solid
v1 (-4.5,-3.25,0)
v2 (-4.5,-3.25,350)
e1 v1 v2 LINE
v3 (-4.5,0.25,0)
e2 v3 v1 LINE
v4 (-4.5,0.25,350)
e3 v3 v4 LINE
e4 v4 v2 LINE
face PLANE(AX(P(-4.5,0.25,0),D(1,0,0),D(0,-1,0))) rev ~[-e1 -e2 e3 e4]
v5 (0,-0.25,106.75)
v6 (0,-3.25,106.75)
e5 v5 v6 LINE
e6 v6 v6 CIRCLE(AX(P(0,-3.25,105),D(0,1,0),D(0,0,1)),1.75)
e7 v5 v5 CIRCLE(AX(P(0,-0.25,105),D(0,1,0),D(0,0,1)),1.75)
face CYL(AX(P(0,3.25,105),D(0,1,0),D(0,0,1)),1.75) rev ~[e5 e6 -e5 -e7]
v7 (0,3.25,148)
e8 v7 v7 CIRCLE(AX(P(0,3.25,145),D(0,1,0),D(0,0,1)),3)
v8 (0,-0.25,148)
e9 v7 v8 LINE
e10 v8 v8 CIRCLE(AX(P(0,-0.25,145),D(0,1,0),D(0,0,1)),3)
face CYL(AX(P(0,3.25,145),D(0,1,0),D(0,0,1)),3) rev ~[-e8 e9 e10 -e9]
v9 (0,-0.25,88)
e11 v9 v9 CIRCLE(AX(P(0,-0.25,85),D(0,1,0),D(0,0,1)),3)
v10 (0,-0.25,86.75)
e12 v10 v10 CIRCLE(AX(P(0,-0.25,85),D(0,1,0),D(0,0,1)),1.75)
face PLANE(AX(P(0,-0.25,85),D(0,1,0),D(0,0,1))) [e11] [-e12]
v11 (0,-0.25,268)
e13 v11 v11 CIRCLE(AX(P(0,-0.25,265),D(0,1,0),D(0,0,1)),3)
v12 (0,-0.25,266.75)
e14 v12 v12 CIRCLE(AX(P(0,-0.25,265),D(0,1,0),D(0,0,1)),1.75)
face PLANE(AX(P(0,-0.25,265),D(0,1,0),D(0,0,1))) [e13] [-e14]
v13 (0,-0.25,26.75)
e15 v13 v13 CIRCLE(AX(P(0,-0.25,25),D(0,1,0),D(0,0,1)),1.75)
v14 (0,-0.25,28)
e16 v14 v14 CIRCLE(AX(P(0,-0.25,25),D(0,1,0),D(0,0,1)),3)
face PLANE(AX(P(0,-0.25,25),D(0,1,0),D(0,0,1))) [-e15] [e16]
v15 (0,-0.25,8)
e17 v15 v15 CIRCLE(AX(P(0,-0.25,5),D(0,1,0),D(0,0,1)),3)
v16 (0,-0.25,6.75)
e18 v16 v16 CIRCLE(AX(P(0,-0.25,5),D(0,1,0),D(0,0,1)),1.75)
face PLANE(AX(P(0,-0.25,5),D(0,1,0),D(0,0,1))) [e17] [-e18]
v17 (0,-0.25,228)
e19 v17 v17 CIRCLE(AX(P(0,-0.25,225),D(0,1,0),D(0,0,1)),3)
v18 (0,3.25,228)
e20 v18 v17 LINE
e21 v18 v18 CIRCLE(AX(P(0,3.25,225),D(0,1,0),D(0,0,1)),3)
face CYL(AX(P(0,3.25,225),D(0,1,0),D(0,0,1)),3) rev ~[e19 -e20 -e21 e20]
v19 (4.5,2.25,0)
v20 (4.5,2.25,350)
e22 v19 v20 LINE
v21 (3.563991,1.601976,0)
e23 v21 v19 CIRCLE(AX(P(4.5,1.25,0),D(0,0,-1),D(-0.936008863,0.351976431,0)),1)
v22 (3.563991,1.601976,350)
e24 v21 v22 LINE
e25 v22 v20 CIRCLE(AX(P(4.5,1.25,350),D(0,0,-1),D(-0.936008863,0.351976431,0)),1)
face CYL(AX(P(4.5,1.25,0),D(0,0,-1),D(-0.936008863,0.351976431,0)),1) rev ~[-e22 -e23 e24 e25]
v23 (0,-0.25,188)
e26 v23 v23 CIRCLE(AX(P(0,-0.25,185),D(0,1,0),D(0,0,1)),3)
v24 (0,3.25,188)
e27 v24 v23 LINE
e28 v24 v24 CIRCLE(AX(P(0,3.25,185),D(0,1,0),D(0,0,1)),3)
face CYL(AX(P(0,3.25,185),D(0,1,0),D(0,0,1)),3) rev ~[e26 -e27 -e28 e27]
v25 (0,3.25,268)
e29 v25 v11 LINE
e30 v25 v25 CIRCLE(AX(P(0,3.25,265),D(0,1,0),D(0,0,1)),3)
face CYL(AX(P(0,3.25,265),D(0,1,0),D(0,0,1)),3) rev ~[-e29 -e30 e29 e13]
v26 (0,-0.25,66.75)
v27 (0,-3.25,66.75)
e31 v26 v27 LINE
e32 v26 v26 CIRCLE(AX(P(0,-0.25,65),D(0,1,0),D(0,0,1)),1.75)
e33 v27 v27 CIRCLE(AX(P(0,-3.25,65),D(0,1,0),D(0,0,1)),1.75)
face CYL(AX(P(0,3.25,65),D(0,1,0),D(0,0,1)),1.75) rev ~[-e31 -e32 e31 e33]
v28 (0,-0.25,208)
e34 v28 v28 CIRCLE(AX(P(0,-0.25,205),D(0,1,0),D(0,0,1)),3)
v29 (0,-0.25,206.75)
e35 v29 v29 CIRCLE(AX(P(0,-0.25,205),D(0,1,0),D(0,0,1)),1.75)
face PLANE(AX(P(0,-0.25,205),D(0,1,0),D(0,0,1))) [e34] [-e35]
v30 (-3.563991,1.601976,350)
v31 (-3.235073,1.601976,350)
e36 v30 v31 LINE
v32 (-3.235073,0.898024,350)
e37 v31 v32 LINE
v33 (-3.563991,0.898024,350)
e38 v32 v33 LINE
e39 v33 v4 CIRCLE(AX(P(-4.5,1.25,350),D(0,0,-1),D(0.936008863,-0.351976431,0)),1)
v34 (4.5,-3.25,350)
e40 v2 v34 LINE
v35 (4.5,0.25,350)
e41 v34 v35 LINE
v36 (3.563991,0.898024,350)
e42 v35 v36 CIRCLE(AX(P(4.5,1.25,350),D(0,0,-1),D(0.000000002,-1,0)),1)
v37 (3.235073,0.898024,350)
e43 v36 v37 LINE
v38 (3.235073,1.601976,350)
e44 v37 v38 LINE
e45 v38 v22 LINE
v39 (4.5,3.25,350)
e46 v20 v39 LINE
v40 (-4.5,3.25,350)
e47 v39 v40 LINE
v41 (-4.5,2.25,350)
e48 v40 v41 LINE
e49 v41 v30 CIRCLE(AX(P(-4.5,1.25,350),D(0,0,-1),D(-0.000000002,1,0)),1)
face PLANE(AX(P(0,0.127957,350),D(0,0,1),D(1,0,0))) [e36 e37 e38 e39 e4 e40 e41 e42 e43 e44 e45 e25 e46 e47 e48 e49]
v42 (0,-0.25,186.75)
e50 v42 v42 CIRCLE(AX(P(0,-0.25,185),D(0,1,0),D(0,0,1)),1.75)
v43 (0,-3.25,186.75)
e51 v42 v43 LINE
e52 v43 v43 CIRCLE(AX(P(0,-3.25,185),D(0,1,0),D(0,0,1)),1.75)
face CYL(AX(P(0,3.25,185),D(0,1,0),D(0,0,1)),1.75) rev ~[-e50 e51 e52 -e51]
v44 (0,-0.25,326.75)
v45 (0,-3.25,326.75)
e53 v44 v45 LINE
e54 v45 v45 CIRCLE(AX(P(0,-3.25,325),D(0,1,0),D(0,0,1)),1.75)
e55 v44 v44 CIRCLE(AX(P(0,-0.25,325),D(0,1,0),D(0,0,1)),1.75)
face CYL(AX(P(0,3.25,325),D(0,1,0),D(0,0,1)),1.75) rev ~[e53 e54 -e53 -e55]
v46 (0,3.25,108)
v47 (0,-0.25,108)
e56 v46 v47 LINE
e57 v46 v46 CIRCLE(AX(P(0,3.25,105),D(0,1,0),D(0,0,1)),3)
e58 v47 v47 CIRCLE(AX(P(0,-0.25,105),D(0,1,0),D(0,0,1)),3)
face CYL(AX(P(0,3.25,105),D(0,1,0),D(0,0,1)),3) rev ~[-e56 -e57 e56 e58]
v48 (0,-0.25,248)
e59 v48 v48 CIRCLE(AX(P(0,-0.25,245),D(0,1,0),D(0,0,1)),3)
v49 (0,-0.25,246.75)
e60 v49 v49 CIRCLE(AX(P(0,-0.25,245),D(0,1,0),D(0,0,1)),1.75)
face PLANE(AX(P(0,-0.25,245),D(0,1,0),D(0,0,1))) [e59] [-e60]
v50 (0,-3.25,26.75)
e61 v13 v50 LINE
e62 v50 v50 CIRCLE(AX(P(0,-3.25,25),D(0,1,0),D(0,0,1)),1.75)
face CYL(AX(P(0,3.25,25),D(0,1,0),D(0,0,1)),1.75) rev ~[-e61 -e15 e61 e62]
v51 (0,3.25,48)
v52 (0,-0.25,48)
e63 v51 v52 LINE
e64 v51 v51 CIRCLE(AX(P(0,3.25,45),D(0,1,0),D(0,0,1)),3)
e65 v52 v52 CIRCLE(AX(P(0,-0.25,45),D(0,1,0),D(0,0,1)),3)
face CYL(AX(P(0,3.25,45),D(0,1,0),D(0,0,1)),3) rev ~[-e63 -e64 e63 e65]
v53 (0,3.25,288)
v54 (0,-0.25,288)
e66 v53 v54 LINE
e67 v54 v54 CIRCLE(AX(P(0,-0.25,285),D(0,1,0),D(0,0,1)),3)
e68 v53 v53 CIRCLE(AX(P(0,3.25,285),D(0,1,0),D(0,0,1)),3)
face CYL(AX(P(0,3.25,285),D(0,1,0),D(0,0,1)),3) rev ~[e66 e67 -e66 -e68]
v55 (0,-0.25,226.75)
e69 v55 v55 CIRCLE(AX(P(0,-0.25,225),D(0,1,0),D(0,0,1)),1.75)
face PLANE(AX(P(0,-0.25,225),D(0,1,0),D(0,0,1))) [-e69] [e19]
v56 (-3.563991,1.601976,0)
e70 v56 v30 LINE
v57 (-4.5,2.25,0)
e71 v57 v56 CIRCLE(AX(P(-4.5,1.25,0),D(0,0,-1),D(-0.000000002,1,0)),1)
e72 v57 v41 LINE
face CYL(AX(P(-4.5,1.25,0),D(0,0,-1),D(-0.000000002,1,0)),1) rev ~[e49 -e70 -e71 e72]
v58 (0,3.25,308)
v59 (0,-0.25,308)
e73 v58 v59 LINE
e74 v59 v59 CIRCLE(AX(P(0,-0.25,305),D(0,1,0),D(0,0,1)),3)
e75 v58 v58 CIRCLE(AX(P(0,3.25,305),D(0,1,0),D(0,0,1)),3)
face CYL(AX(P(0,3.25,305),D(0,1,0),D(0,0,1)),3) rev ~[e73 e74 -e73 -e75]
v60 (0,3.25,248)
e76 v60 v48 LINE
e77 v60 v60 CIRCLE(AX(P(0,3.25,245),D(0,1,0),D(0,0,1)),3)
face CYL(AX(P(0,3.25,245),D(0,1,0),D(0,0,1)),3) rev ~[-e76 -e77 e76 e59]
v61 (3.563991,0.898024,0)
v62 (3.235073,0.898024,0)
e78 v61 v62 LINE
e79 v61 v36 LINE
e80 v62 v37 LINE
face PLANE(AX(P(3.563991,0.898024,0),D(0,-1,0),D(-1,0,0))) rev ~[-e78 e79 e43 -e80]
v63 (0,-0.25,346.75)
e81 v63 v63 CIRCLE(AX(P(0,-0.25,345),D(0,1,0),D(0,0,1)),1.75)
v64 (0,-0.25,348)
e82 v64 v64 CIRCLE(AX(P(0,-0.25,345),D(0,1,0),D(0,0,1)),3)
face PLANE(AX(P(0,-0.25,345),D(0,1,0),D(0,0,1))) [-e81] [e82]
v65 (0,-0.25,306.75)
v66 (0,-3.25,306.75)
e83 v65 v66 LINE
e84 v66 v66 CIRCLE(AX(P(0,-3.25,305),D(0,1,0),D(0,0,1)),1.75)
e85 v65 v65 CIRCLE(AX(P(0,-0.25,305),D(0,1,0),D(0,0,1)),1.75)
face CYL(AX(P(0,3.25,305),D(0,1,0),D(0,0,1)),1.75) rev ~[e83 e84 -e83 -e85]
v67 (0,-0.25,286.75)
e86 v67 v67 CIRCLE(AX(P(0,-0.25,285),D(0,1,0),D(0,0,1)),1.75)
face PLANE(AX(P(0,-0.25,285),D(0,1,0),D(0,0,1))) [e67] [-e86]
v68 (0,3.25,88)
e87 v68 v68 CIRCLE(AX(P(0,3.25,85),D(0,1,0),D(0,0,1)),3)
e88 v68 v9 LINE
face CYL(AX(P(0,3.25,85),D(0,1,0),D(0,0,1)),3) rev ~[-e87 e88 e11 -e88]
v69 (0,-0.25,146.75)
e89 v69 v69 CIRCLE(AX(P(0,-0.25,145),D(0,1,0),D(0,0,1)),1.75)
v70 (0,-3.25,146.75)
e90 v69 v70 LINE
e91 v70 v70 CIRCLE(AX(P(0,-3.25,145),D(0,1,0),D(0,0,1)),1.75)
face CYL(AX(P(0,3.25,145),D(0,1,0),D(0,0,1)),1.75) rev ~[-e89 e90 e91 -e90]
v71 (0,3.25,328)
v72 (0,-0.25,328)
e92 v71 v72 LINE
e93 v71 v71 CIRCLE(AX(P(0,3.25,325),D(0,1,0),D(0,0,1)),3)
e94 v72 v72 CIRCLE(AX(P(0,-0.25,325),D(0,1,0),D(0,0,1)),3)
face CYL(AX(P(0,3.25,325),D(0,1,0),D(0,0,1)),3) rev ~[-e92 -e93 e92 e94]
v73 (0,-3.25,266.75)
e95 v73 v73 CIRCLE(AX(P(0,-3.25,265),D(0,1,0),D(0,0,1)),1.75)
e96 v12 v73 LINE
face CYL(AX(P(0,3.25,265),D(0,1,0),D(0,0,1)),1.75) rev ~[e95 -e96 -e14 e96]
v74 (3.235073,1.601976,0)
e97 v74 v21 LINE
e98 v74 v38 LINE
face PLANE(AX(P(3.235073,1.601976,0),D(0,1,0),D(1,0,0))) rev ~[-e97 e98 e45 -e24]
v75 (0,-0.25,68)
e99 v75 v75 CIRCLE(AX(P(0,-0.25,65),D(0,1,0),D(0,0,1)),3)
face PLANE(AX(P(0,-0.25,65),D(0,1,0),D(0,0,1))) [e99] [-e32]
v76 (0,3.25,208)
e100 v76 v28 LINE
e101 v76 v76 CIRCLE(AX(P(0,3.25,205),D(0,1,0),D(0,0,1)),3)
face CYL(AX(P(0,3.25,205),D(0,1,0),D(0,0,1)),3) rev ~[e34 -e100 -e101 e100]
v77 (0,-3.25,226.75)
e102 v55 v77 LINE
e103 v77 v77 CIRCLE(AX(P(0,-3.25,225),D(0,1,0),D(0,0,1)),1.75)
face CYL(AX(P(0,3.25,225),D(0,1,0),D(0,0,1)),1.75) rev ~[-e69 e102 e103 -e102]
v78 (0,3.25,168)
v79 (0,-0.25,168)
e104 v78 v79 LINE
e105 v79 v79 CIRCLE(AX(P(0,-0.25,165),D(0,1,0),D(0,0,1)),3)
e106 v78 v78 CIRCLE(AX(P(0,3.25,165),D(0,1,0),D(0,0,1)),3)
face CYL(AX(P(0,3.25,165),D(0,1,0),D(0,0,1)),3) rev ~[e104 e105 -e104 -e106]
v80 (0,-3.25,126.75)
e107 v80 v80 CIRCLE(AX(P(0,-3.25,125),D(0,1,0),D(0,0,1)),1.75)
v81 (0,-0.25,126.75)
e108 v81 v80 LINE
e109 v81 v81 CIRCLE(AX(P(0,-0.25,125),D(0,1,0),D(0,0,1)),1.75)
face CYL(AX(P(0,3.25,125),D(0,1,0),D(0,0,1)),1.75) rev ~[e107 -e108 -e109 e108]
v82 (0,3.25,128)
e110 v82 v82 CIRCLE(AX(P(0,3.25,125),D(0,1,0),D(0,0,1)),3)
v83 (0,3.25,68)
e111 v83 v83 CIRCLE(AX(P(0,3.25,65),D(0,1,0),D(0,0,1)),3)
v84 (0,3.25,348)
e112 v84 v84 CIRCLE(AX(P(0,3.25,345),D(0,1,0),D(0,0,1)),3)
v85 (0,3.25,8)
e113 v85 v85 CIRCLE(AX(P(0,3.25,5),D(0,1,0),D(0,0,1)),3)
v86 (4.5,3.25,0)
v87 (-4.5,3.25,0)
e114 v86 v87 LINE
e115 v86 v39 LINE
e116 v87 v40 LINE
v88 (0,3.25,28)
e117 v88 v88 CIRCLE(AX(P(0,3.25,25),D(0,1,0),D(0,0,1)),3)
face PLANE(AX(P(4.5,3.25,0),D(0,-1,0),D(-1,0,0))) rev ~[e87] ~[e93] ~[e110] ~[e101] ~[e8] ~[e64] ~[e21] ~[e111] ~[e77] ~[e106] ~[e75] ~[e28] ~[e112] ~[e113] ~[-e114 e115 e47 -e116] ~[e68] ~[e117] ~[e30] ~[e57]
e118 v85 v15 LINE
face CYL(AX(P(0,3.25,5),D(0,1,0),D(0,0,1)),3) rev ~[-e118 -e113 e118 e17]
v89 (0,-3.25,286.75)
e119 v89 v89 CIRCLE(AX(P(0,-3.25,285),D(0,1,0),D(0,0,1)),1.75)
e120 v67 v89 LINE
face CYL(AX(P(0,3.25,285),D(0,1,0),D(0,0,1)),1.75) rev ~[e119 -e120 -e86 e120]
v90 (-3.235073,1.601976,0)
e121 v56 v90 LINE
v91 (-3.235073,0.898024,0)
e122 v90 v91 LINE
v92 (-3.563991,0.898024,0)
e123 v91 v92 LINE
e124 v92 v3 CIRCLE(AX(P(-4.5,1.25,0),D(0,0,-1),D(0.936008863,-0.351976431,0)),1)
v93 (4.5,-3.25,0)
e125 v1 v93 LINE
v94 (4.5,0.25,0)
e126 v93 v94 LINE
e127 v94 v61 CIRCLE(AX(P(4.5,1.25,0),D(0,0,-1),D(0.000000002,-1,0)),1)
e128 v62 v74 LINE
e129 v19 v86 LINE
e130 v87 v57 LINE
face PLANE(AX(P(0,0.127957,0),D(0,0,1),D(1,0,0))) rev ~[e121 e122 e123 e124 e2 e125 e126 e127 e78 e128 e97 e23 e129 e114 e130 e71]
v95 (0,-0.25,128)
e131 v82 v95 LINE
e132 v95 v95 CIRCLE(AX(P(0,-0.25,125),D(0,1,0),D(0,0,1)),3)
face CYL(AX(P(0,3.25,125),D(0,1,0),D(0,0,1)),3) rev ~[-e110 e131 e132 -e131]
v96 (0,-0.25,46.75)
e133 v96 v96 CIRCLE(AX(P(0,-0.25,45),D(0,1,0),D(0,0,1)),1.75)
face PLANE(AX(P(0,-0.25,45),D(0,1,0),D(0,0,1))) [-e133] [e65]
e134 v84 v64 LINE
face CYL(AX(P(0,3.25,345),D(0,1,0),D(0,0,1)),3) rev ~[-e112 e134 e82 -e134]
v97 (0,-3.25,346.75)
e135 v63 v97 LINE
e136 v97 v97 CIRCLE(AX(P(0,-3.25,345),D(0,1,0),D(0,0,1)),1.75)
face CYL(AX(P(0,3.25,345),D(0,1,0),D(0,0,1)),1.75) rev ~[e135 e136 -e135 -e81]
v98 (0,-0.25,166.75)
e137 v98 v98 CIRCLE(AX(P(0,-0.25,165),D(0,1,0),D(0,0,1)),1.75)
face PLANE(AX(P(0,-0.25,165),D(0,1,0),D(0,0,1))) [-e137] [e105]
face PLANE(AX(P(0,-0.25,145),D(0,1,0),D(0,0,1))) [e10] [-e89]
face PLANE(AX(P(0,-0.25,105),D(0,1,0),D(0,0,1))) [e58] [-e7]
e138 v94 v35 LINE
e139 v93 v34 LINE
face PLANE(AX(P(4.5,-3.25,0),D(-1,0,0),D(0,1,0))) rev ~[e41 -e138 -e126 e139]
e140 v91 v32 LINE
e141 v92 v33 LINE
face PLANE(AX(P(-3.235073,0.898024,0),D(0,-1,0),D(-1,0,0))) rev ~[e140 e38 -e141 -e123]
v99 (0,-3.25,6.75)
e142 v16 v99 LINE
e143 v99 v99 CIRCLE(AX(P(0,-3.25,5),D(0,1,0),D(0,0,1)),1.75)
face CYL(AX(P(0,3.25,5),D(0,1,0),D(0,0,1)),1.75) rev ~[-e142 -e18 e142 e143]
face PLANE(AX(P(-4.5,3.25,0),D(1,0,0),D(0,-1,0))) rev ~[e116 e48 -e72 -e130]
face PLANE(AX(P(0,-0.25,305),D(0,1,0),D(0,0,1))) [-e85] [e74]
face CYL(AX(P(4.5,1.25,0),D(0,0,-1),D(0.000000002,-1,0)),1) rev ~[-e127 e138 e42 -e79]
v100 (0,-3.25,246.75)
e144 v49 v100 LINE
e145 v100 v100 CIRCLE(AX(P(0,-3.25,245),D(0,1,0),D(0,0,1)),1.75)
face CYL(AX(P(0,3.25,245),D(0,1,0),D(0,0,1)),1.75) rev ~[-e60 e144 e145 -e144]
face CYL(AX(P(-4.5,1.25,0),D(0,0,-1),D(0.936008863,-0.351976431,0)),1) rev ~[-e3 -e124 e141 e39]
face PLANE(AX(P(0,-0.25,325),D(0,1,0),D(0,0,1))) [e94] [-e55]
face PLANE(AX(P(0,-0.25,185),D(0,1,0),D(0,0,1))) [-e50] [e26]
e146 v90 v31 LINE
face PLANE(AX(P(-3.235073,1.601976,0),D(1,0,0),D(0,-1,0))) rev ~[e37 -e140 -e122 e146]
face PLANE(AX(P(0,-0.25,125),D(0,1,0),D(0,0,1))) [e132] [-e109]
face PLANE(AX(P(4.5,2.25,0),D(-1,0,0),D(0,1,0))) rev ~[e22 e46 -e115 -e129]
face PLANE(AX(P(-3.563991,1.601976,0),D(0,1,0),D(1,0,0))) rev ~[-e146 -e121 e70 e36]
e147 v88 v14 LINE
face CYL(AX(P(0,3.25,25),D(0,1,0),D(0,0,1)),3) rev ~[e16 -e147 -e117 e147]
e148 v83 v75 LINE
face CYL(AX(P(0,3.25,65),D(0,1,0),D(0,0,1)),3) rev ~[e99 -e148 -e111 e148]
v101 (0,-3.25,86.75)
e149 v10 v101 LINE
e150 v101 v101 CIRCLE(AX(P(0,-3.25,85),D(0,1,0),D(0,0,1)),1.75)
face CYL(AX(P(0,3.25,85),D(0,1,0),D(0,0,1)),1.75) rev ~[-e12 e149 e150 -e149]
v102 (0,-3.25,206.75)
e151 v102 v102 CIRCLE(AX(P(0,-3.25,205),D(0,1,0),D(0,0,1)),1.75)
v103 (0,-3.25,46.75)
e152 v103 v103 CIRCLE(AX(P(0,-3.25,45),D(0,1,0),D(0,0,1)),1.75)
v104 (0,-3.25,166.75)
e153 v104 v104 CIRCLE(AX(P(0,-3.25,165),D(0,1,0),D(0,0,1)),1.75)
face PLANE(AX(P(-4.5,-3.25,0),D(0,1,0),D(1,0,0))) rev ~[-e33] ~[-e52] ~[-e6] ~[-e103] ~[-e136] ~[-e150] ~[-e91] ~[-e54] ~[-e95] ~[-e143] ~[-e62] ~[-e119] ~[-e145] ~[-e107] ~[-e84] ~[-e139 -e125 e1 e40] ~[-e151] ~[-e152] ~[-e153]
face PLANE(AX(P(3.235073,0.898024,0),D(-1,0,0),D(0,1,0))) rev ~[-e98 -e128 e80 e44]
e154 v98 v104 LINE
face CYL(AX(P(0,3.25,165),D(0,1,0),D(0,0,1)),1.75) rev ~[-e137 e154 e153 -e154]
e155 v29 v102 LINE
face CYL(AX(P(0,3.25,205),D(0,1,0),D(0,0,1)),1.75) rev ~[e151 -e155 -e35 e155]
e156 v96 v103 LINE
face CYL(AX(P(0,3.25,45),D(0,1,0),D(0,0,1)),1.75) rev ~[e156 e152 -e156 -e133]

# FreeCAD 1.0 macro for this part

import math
import FreeCAD as App
import Part
import Sketcher

V = App.Vector

doc = App.newDocument("Part")
body = doc.addObject("PartDesign::Body", "Body")

# Sketch on XY plane
sketch1 = body.newObject("Sketcher::SketchObject", "Sketch")
sketch1.AttachmentSupport = (doc.getObject("XY_Plane"), [""])
sketch1.MapMode = "FlatFace"
sketch1.addGeometry([
    Part.LineSegment(V(-4.5, -3.25, 0), V(4.5, -3.25, 0)),  # 0
    Part.LineSegment(V(4.5, -3.25, 0), V(4.5, 0.25, 0)),  # 1
    Part.ArcOfCircle(Part.Circle(V(4.5, 1.25, 0), V(0, 0, 1), 1), math.radians(-159), math.radians(-90)),  # 2
    Part.LineSegment(V(3.56, 0.9, 0), V(3.24, 0.9, 0)),  # 3
    Part.LineSegment(V(3.24, 0.9, 0), V(3.24, 1.6, 0)),  # 4
    Part.LineSegment(V(3.24, 1.6, 0), V(3.56, 1.6, 0)),  # 5
    Part.ArcOfCircle(Part.Circle(V(4.5, 1.25, 0), V(0, 0, 1), 1), math.radians(90), math.radians(159)),  # 6
    Part.LineSegment(V(4.5, 2.25, 0), V(4.5, 3.25, 0)),  # 7
    Part.LineSegment(V(4.5, 3.25, 0), V(-4.5, 3.25, 0)),  # 8
    Part.LineSegment(V(-4.5, 3.25, 0), V(-4.5, 2.25, 0)),  # 9
    Part.ArcOfCircle(Part.Circle(V(-4.5, 1.25, 0), V(0, 0, 1), 1), math.radians(21), math.radians(90)),  # 10
    Part.LineSegment(V(-3.56, 1.6, 0), V(-3.24, 1.6, 0)),  # 11
    Part.LineSegment(V(-3.24, 1.6, 0), V(-3.24, 0.9, 0)),  # 12
    Part.LineSegment(V(-3.24, 0.9, 0), V(-3.56, 0.9, 0)),  # 13
    Part.ArcOfCircle(Part.Circle(V(-4.5, 1.25, 0), V(0, 0, 1), 1), math.radians(-90), math.radians(-21)),  # 14
    Part.LineSegment(V(-4.5, 0.25, 0), V(-4.5, -3.25, 0)),  # 15
], False)
sketch1.addConstraint([
    Sketcher.Constraint("Coincident", 0, 2, 1, 1),
    Sketcher.Constraint("Coincident", 1, 2, 2, 2),
    Sketcher.Constraint("Coincident", 2, 1, 3, 1),
    Sketcher.Constraint("Coincident", 3, 2, 4, 1),
    Sketcher.Constraint("Coincident", 4, 2, 5, 1),
    Sketcher.Constraint("Coincident", 5, 2, 6, 2),
    Sketcher.Constraint("Coincident", 6, 1, 7, 1),
    Sketcher.Constraint("Coincident", 7, 2, 8, 1),
    Sketcher.Constraint("Coincident", 8, 2, 9, 1),
    Sketcher.Constraint("Coincident", 9, 2, 10, 2),
    Sketcher.Constraint("Coincident", 10, 1, 11, 1),
    Sketcher.Constraint("Coincident", 11, 2, 12, 1),
    Sketcher.Constraint("Coincident", 12, 2, 13, 1),
    Sketcher.Constraint("Coincident", 13, 2, 14, 2),
    Sketcher.Constraint("Coincident", 14, 1, 15, 1),
    Sketcher.Constraint("Coincident", 15, 2, 0, 1),
    Sketcher.Constraint("Horizontal", 0),
    Sketcher.Constraint("Vertical", 1),
    Sketcher.Constraint("Horizontal", 3),
    Sketcher.Constraint("Vertical", 4),
    Sketcher.Constraint("Horizontal", 5),
    Sketcher.Constraint("Vertical", 7),
    Sketcher.Constraint("Horizontal", 8),
    Sketcher.Constraint("Vertical", 9),
    Sketcher.Constraint("Horizontal", 11),
    Sketcher.Constraint("Vertical", 12),
    Sketcher.Constraint("Horizontal", 13),
    Sketcher.Constraint("Vertical", 15),
    Sketcher.Constraint("Coincident", 6, 3, 2, 3),
    Sketcher.Constraint("Coincident", 14, 3, 10, 3),
    Sketcher.Constraint("Equal", 2, 6),
    Sketcher.Constraint("Equal", 6, 10),
    Sketcher.Constraint("Equal", 10, 14),
    Sketcher.Constraint("Symmetric", 0, 2, 8, 2, -1, 1),
    Sketcher.Constraint("Symmetric", 2, 3, 10, 3, -2),
    Sketcher.Constraint("Symmetric", 4, 2, 11, 2, -2),
    Sketcher.Constraint("Horizontal", 3, 2, 12, 2),
    Sketcher.Constraint("Vertical", 6, 3, 0, 2),
    Sketcher.Constraint("Vertical", 2, 1, 5, 2),
    Sketcher.Constraint("Vertical", 1, 2, 6, 1),
    Sketcher.Constraint("Vertical", 9, 2, 14, 1),
    Sketcher.Constraint("Radius", 2, 1.0),
    Sketcher.Constraint("DistanceX", 0, 1, 0, 2, 9.0),
    Sketcher.Constraint("DistanceY", 7, 1, 7, 2, 1.0),
    Sketcher.Constraint("DistanceY", 1, 1, 1, 2, 3.5),
    Sketcher.Constraint("DistanceX", 3, 2, 3, 1, 0.328918),
    Sketcher.Constraint("DistanceY", 4, 1, 4, 2, 0.703953),
])
pad1 = body.newObject("PartDesign::Pad", "Pad")
pad1.Profile = sketch1
pad1.Length = 350

# Sketch on XZ plane
sketch2 = body.newObject("Sketcher::SketchObject", "Sketch001")
sketch2.AttachmentSupport = (doc.getObject("XZ_Plane"), [""])
sketch2.MapMode = "FlatFace"
sketch2.AttachmentOffset = App.Placement(V(0, 0, -3.25), App.Rotation())
sketch2.addGeometry(Part.Circle(V(0, 5, 0), V(0, 0, 1), 3), False)
sketch2.addConstraint([
    Sketcher.Constraint("PointOnObject", 0, 3, -2),
    Sketcher.Constraint("Diameter", 0, 6.0),
    Sketcher.Constraint("DistanceY", -1, 1, 0, 3, 5.0),
])
pocket1 = body.newObject("PartDesign::Pocket", "Pocket")
pocket1.Profile = sketch2
pocket1.Length = 3.5
pocket1.Reversed = True

# Sketch on XZ plane
sketch3 = body.newObject("Sketcher::SketchObject", "Sketch002")
sketch3.AttachmentSupport = (doc.getObject("XZ_Plane"), [""])
sketch3.MapMode = "FlatFace"
sketch3.AttachmentOffset = App.Placement(V(0, 0, -3.25), App.Rotation())
sketch3.addGeometry(Part.Circle(V(0, 5, 0), V(0, 0, 1), 1.8), False)
sketch3.addConstraint([
    Sketcher.Constraint("PointOnObject", 0, 3, -2),
    Sketcher.Constraint("Diameter", 0, 3.5),
    Sketcher.Constraint("DistanceY", -1, 1, 0, 3, 5.0),
])
pocket2 = body.newObject("PartDesign::Pocket", "Pocket001")
pocket2.Profile = sketch3
pocket2.Type = "ThroughAll"
pocket2.Reversed = True
doc.recompute()

linearpattern = body.newObject("PartDesign::LinearPattern", "LinearPattern")
linearpattern.Originals = [pocket1, pocket2]
linearpattern.Direction = (doc.getObject("Z_Axis"), [""])
linearpattern.Mode = "offset"
linearpattern.Offset = 20
linearpattern.Occurrences = 18
body.Tip = linearpattern

doc.recompute()
